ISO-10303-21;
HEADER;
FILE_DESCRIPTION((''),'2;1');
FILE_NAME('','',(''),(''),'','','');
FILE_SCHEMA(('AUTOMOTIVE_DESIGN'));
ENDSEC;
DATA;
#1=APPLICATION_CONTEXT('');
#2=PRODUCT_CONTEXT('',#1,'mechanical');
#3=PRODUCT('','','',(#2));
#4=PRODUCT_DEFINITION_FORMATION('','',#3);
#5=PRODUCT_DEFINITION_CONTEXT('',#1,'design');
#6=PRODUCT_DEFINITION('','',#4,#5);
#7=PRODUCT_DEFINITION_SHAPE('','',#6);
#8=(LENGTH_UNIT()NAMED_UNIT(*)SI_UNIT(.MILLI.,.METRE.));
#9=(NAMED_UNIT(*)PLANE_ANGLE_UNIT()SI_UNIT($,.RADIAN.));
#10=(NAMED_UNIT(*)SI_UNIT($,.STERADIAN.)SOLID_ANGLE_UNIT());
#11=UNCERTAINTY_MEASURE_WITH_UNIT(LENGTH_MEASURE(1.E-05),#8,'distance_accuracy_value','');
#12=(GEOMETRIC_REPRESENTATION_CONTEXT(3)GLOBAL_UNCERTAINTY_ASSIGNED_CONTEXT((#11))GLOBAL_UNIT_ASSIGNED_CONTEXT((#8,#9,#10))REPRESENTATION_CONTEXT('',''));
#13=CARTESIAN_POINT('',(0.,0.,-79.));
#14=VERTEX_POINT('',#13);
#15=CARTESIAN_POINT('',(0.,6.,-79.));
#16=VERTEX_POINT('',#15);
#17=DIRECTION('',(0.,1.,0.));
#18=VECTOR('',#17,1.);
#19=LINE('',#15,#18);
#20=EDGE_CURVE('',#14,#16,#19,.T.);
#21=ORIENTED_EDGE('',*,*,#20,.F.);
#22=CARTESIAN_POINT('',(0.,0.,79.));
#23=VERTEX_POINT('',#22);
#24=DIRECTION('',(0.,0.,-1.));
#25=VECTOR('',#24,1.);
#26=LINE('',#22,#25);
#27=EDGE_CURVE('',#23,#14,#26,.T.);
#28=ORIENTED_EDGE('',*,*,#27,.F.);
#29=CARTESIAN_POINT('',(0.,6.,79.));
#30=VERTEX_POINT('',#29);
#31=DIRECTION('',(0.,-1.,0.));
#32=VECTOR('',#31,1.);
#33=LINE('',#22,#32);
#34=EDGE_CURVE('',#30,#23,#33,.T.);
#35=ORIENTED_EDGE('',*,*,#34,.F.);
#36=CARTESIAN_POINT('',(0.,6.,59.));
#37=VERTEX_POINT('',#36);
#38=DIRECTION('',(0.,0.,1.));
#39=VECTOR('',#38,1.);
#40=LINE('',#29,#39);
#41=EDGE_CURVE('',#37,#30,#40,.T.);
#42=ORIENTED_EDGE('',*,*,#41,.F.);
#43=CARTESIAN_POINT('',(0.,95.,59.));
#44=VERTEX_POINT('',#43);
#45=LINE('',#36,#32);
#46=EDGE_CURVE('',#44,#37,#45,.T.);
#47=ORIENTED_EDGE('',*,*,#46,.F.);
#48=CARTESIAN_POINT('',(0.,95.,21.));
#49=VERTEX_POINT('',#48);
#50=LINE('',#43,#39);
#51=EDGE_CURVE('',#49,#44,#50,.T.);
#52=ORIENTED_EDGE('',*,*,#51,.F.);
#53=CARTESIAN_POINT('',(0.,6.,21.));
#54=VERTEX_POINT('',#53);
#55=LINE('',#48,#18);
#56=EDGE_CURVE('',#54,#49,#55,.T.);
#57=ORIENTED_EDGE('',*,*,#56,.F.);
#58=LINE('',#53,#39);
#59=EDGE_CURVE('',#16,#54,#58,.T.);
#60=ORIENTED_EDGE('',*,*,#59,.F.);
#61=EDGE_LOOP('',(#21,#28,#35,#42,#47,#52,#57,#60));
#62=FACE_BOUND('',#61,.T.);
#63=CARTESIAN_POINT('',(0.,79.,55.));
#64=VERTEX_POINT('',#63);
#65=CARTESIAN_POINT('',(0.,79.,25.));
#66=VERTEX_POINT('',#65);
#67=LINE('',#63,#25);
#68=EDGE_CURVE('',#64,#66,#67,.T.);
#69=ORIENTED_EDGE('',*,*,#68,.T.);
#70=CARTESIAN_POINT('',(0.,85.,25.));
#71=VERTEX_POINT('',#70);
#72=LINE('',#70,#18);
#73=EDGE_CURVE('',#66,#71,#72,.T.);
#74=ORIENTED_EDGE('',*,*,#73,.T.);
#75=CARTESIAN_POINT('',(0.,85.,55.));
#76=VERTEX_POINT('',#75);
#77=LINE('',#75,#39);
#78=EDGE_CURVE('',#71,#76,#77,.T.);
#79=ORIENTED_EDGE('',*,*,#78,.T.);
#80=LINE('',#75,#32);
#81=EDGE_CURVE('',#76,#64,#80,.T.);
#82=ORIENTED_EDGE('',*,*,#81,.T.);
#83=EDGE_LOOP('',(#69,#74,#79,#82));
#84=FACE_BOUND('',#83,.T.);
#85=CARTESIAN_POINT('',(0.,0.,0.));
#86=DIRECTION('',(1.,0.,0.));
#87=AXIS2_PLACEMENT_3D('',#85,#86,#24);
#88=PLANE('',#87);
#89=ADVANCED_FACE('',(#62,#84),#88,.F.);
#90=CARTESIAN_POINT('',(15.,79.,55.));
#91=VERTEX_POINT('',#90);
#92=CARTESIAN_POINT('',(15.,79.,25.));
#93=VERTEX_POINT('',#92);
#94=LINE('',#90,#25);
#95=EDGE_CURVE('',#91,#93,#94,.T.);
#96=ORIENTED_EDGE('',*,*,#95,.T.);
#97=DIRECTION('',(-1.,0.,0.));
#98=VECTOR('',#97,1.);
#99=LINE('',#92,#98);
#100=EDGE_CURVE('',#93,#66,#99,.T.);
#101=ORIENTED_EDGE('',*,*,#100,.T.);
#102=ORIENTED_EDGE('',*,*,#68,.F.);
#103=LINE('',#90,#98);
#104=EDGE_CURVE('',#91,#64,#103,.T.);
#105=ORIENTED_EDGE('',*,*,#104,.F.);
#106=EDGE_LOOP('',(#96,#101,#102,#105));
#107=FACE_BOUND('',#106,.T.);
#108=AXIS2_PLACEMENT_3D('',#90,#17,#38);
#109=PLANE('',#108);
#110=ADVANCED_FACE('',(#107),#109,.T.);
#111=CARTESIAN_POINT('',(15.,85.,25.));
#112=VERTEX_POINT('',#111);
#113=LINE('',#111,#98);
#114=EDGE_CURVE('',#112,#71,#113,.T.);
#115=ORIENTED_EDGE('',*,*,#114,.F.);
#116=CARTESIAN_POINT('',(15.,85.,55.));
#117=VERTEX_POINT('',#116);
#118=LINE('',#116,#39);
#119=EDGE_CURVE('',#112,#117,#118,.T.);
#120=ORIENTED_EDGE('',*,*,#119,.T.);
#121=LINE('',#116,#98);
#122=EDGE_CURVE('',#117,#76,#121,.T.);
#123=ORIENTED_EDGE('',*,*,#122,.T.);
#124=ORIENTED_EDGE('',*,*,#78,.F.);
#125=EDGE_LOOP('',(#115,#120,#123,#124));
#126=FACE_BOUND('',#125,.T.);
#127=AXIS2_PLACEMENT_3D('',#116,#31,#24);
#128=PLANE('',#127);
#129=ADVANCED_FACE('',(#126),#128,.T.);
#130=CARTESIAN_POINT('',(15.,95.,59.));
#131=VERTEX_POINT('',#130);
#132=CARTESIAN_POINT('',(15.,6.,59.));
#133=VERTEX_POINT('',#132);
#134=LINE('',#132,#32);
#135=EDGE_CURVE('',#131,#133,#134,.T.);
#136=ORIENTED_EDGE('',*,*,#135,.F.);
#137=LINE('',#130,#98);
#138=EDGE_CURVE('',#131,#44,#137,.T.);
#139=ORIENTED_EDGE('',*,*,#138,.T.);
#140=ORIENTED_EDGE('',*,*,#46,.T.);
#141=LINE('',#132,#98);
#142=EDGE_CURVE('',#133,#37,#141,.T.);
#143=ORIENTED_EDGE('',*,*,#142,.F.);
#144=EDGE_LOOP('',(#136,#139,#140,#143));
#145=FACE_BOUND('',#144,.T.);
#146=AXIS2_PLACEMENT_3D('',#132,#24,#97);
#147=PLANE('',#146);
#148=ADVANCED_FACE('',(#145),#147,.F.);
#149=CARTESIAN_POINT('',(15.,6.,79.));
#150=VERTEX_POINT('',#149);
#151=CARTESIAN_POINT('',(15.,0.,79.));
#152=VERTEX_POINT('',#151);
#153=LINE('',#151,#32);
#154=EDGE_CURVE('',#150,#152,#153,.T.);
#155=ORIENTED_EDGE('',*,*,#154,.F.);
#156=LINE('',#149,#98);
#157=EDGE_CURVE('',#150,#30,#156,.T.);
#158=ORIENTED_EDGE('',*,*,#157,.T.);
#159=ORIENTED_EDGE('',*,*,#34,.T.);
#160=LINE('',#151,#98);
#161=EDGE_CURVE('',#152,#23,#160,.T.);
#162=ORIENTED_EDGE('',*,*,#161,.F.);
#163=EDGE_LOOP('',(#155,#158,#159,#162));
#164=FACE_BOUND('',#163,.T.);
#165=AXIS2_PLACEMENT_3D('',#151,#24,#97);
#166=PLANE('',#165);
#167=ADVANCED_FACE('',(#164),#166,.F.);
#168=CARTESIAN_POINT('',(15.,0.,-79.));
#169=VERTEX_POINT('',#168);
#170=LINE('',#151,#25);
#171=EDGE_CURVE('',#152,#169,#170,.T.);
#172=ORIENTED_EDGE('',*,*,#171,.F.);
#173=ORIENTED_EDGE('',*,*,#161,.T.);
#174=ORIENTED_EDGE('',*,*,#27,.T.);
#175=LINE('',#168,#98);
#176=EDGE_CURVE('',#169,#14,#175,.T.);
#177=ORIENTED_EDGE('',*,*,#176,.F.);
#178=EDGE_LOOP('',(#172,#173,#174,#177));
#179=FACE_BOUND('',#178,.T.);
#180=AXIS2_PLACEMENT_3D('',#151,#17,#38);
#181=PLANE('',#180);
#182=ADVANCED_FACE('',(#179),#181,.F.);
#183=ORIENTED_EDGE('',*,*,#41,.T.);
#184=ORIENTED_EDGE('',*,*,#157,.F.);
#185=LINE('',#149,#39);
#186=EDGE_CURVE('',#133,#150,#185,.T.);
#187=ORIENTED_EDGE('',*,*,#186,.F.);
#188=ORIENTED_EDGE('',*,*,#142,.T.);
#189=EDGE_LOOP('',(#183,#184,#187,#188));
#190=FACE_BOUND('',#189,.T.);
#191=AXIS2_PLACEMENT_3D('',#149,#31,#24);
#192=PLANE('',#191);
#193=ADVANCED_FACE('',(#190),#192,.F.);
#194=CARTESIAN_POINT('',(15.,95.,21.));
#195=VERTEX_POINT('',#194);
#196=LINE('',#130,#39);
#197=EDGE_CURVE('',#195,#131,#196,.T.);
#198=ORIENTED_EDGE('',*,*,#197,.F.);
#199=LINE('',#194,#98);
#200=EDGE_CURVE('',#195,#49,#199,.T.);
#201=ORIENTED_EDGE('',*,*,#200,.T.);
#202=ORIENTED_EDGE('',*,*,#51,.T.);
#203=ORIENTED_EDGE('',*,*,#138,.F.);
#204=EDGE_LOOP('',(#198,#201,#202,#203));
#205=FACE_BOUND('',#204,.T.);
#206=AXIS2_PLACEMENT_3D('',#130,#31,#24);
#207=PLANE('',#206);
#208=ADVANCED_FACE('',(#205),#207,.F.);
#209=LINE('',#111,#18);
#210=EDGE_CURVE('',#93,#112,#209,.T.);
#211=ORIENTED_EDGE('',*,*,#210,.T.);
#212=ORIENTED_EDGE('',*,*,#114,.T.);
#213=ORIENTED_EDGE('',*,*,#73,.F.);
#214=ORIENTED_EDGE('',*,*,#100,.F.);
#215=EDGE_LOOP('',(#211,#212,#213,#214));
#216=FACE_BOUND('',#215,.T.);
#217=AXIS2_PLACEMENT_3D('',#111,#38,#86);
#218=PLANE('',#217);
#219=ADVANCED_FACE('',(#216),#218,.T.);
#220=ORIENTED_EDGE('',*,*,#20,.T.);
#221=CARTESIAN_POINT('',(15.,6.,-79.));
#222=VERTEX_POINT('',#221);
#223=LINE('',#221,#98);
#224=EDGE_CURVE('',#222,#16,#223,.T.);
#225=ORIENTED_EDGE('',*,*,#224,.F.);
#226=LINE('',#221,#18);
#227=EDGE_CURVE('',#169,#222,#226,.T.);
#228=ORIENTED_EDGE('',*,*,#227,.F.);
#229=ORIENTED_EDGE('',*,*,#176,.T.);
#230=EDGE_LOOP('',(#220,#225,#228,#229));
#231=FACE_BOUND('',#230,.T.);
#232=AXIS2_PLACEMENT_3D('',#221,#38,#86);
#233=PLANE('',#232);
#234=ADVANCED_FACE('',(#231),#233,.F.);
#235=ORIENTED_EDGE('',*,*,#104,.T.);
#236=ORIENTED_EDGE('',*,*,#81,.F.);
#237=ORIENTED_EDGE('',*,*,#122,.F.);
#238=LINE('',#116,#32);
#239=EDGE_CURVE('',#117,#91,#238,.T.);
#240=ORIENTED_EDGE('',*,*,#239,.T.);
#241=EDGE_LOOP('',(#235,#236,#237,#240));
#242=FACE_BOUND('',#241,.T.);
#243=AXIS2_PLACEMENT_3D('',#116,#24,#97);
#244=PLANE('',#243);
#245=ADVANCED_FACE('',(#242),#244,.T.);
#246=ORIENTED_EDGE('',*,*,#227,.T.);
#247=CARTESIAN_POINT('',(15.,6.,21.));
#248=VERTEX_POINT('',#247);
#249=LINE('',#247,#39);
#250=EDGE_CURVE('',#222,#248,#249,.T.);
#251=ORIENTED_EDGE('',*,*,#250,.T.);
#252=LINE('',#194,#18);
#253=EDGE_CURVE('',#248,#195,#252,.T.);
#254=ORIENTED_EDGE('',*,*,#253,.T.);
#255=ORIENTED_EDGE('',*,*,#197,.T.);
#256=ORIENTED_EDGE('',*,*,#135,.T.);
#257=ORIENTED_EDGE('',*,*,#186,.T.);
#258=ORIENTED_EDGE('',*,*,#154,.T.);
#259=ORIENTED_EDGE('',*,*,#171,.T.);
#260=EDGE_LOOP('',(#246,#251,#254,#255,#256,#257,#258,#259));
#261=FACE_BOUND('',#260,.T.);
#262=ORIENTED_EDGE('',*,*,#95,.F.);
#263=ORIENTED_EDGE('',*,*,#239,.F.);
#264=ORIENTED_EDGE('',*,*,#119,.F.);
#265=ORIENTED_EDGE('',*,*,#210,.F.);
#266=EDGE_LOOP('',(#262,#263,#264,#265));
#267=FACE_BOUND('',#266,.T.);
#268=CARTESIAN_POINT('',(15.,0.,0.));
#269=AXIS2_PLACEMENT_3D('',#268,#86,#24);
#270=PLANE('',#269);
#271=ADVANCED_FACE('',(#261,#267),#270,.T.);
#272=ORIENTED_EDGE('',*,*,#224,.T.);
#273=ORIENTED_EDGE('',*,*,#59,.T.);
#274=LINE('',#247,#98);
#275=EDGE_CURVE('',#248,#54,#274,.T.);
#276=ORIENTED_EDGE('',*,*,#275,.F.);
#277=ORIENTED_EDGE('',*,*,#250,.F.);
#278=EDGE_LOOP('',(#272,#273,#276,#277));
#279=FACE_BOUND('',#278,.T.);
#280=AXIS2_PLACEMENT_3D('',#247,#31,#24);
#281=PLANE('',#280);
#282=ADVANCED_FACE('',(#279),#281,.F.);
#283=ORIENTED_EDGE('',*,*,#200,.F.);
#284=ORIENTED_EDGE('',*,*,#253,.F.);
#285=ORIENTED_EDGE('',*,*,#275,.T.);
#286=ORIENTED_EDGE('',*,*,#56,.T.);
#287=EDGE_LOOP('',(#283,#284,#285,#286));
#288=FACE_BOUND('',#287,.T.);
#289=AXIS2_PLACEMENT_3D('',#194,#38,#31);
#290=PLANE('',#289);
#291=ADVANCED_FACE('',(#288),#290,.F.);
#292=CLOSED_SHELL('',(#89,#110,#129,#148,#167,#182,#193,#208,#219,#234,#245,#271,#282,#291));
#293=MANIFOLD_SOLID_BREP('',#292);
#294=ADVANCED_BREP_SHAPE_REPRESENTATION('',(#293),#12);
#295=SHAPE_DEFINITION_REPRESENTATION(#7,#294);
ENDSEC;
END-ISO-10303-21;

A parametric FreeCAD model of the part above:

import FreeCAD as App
import Part
import Sketcher

V = App.Vector
Q = App.Units.Quantity


def add_polygon(sketch, points):
    """Adds a closed chain of lines whose ends are joined by coincident constraints."""
    first, n = sketch.GeometryCount, len(points)
    for a, b in zip(points, points[1:] + points[:1]):
        sketch.addGeometry(Part.LineSegment(App.Vector(*a, 0), App.Vector(*b, 0)), False)
    for i in range(n):
        sketch.addConstraint(Sketcher.Constraint("Coincident", first + i, 2, first + (i + 1) % n, 1))

doc = App.newDocument("Part")
params = doc.addObject("Spreadsheet::Sheet", "Params")
for row, (alias, value) in enumerate([
    ("sketch1_width", "6 mm"),
    ("sketch1_width2", "89 mm"),
    ("sketch1_height", "158 mm"),
    ("sketch1_height2", "100 mm"),
    ("sketch1_height3", "38 mm"),
    ("pad1_length", "15 mm"),
], start=1):
    params.set(f"A{row}", alias)
    params.set(f"B{row}", "=" + value)
    params.setAlias(f"B{row}", alias)

body = doc.addObject("PartDesign::Body", "Body")

# Sketch on YZ plane
sketch1 = body.newObject("Sketcher::SketchObject", "Sketch")
sketch1.AttachmentSupport = (doc.getObject("YZ_Plane"), [""])
sketch1.MapMode = "FlatFace"
add_polygon(sketch1, [(0, 79), (0, -79), (6, -79), (6, 21), (95, 21), (95, 59), (6, 59), (6, 79)])  # lines 0-7
add_polygon(sketch1, [(79, 25), (79, 55), (85, 55), (85, 25)])  # lines 8-11
sketch1.addConstraint(Sketcher.Constraint("Vertical", 0))
sketch1.addConstraint(Sketcher.Constraint("Horizontal", 1))
sketch1.addConstraint(Sketcher.Constraint("Vertical", 2))
sketch1.addConstraint(Sketcher.Constraint("Horizontal", 3))
sketch1.addConstraint(Sketcher.Constraint("Vertical", 4))
sketch1.addConstraint(Sketcher.Constraint("Horizontal", 5))
sketch1.addConstraint(Sketcher.Constraint("Vertical", 6))
sketch1.addConstraint(Sketcher.Constraint("Horizontal", 7))
sketch1.addConstraint(Sketcher.Constraint("Vertical", 8))
sketch1.addConstraint(Sketcher.Constraint("Horizontal", 9))
sketch1.addConstraint(Sketcher.Constraint("Vertical", 10))
sketch1.addConstraint(Sketcher.Constraint("Horizontal", 11))
sketch1.addConstraint(Sketcher.Constraint("Symmetric", 0, 2, 7, 2, -1, 1))
sketch1.addConstraint(Sketcher.Constraint("Vertical", 2, 2, 5, 2))
sketch1.addConstraint(Sketcher.Constraint("Equal", 7, 9))
sketch1.addConstraint(Sketcher.Constraint("DistanceX", 1, 1, 1, 2, Q("6 mm")))
sketch1.addConstraint(Sketcher.Constraint("DistanceX", 3, 1, 3, 2, Q("89 mm")))
sketch1.addConstraint(Sketcher.Constraint("DistanceY", 0, 2, 0, 1, Q("158 mm")))
sketch1.addConstraint(Sketcher.Constraint("DistanceY", 2, 1, 2, 2, Q("100 mm")))
sketch1.addConstraint(Sketcher.Constraint("DistanceY", 4, 1, 4, 2, Q("38 mm")))
sketch1.addConstraint(Sketcher.Constraint("DistanceY", 8, 1, 8, 2, Q("30 mm")))
sketch1.addConstraint(Sketcher.Constraint("DistanceX", -1, 1, 8, 2, Q("79 mm")))
sketch1.addConstraint(Sketcher.Constraint("DistanceY", -1, 1, 8, 2, Q("55 mm")))
sketch1.setExpression("Constraints[27]", "Params.sketch1_width")
sketch1.setExpression("Constraints[28]", "Params.sketch1_width2")
sketch1.setExpression("Constraints[29]", "Params.sketch1_height")
sketch1.setExpression("Constraints[30]", "Params.sketch1_height2")
sketch1.setExpression("Constraints[31]", "Params.sketch1_height3")
pad1 = body.newObject("PartDesign::Pad", "Pad")
pad1.Profile = sketch1
pad1.setExpression("Length", "Params.pad1_length")

doc.recompute()
